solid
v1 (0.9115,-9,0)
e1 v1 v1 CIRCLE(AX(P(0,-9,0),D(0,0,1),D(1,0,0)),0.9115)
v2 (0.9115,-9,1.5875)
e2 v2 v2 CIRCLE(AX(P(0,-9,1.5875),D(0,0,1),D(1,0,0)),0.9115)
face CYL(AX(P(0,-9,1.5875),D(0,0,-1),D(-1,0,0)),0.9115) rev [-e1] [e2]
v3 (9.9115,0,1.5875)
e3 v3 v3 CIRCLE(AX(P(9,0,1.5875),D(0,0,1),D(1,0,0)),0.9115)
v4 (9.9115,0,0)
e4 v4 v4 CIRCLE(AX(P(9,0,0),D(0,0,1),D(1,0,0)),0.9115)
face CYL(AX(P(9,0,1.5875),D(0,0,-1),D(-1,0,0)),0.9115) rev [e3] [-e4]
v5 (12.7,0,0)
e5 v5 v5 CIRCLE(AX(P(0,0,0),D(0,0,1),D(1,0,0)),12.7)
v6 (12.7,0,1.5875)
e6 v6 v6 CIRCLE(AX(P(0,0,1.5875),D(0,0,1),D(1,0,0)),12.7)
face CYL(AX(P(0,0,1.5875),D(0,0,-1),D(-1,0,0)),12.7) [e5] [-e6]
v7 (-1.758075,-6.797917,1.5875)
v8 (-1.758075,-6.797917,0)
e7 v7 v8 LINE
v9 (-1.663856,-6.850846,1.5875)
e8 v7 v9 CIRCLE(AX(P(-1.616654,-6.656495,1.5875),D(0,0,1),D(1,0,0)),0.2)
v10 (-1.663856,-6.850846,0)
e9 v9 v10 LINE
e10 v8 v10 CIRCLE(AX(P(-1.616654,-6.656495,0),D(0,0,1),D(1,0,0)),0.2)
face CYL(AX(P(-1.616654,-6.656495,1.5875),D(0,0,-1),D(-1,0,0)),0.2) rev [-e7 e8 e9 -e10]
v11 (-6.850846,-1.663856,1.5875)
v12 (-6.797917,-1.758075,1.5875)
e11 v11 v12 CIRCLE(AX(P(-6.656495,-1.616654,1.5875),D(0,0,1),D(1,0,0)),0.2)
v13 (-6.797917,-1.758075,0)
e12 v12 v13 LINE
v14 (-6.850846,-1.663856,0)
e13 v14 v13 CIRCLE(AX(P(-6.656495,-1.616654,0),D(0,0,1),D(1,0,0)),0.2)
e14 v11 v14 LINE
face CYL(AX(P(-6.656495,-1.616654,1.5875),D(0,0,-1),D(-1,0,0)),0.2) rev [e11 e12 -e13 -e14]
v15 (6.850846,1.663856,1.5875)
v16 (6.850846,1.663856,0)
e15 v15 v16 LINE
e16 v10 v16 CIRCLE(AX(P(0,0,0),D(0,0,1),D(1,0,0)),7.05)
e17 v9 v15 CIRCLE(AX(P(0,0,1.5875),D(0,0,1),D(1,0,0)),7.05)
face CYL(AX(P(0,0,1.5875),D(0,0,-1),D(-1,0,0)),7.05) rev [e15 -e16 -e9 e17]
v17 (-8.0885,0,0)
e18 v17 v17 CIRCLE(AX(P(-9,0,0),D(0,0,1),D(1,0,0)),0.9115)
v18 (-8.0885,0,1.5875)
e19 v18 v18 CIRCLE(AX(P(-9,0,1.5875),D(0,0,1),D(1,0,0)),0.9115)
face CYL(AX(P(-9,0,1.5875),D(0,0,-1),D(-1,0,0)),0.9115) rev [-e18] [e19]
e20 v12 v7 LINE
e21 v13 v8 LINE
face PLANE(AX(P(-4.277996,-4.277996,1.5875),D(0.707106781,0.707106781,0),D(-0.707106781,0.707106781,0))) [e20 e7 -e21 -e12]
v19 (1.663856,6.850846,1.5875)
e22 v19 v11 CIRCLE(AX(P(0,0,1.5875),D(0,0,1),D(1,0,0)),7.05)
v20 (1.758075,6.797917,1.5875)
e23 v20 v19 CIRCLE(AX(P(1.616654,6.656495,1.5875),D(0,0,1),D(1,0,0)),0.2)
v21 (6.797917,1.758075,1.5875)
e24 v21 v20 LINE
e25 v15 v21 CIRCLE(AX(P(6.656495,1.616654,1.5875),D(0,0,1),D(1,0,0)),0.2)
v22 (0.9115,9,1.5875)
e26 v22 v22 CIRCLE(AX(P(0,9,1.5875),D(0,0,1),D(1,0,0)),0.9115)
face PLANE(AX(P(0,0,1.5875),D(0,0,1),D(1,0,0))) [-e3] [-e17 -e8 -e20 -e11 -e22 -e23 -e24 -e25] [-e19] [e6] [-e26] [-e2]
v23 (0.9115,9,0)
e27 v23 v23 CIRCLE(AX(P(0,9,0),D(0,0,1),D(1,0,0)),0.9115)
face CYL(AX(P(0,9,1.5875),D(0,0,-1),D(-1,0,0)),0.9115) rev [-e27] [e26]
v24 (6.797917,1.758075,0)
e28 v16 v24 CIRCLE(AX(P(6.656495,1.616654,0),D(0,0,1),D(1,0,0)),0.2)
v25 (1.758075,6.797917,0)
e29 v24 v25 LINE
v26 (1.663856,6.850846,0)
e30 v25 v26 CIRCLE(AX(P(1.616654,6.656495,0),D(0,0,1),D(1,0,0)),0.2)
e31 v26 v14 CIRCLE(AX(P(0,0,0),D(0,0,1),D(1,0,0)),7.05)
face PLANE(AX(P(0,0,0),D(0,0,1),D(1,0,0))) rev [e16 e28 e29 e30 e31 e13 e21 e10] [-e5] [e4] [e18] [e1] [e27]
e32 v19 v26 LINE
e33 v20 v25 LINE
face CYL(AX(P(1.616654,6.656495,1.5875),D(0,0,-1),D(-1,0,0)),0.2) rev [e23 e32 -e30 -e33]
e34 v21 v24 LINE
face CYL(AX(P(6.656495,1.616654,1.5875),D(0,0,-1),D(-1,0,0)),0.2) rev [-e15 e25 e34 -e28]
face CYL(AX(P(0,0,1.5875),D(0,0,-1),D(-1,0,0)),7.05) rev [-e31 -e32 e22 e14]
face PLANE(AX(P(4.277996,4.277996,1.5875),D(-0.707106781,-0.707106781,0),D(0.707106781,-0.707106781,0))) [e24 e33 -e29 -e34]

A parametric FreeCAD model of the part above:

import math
import FreeCAD as App
import Part
import Sketcher

V = App.Vector
Q = App.Units.Quantity

doc = App.newDocument("Part")
params = doc.addObject("Spreadsheet::Sheet", "Params")
for row, (alias, value) in enumerate([
    ("sketch1_diameter", "25.4 mm"),
    ("sketch1_radius", "0.2 mm"),
    ("sketch1_radius2", "7.05 mm"),
    ("pad1_length", "1.5875 mm"),
], start=1):
    params.set(f"A{row}", alias)
    params.set(f"B{row}", "=" + value)
    params.setAlias(f"B{row}", alias)

body = doc.addObject("PartDesign::Body", "Body")

# Sketch on XY plane
sketch1 = doc.addObject("Sketcher::SketchObject", "Sketch")
body.addObject(sketch1)
sketch1.AttachmentSupport = (doc.XY_Plane, [""])
sketch1.MapMode = "FlatFace"
sketch1.addGeometry(Part.Circle(V(0, 0, 0), V(0, 0, 1), 12.7), False)
sketch1.addGeometry(Part.ArcOfCircle(Part.Circle(V(0, 0, 0), V(0, 0, 1), 7.05), math.radians(76.348958), math.radians(193.651042)), False)
sketch1.addGeometry(Part.ArcOfCircle(Part.Circle(V(1.616654, 6.656495, 0), V(0, 0, 1), 0.2), math.radians(45.000001), math.radians(76.348958)), False)
sketch1.addGeometry(Part.LineSegment(V(1.758075, 6.797917, 0), V(6.797917, 1.758075, 0)), False)
sketch1.addGeometry(Part.ArcOfCircle(Part.Circle(V(6.656495, 1.616654, 0), V(0, 0, 1), 0.2), math.radians(13.651042), math.radians(44.999999)), False)
sketch1.addGeometry(Part.ArcOfCircle(Part.Circle(V(0, 0, 0), V(0, 0, 1), 7.05), math.radians(-103.651042), math.radians(13.651042)), False)
sketch1.addGeometry(Part.ArcOfCircle(Part.Circle(V(-1.616654, -6.656495, 0), V(0, 0, 1), 0.2), math.radians(-134.999999), math.radians(-103.651042)), False)
sketch1.addGeometry(Part.LineSegment(V(-1.758075, -6.797917, 0), V(-6.797917, -1.758075, 0)), False)
sketch1.addGeometry(Part.ArcOfCircle(Part.Circle(V(-6.656495, -1.616654, 0), V(0, 0, 1), 0.2), math.radians(-166.348958), math.radians(-135.000001)), False)
sketch1.addGeometry(Part.Circle(V(0, 9, 0), V(0, 0, 1), 0.9115), False)
sketch1.addGeometry(Part.Circle(V(9, 0, 0), V(0, 0, 1), 0.9115), False)
sketch1.addGeometry(Part.Circle(V(0, -9, 0), V(0, 0, 1), 0.9115), False)
sketch1.addGeometry(Part.Circle(V(-9, 0, 0), V(0, 0, 1), 0.9115), False)
sketch1.addConstraint(Sketcher.Constraint("Tangent", 1, 1, 2, 2))
sketch1.addConstraint(Sketcher.Constraint("Tangent", 2, 1, 3, 1))
sketch1.addConstraint(Sketcher.Constraint("Tangent", 3, 2, 4, 2))
sketch1.addConstraint(Sketcher.Constraint("Tangent", 4, 1, 5, 2))
sketch1.addConstraint(Sketcher.Constraint("Tangent", 5, 1, 6, 2))
sketch1.addConstraint(Sketcher.Constraint("Tangent", 6, 1, 7, 1))
sketch1.addConstraint(Sketcher.Constraint("Tangent", 7, 2, 8, 2))
sketch1.addConstraint(Sketcher.Constraint("Tangent", 8, 1, 1, 2))
sketch1.addConstraint(Sketcher.Constraint("Coincident", 0, 3, -1, 1))
sketch1.addConstraint(Sketcher.Constraint("Coincident", 1, 3, -1, 1))
sketch1.addConstraint(Sketcher.Constraint("Coincident", 5, 3, -1, 1))
sketch1.addConstraint(Sketcher.Constraint("Equal", 2, 4))
sketch1.addConstraint(Sketcher.Constraint("Equal", 1, 5))
sketch1.addConstraint(Sketcher.Constraint("Equal", 4, 6))
sketch1.addConstraint(Sketcher.Constraint("Equal", 6, 8))
sketch1.addConstraint(Sketcher.Constraint("Equal", 9, 10))
sketch1.addConstraint(Sketcher.Constraint("Equal", 10, 11))
sketch1.addConstraint(Sketcher.Constraint("Equal", 11, 12))
sketch1.addConstraint(Sketcher.Constraint("Symmetric", 9, 3, 11, 3, -1, 1))
sketch1.addConstraint(Sketcher.Constraint("Symmetric", 10, 3, 12, 3, -1, 1))
sketch1.addConstraint(Sketcher.Constraint("Symmetric", 2, 1, 6, 1, -1, 1))
sketch1.addConstraint(Sketcher.Constraint("PointOnObject", 9, 3, -2))
sketch1.addConstraint(Sketcher.Constraint("PointOnObject", 10, 3, -1))
sketch1.addConstraint(Sketcher.Constraint("Diameter", 0, 25.4))
sketch1.addConstraint(Sketcher.Constraint("Radius", 2, 0.2))
sketch1.addConstraint(Sketcher.Constraint("Angle", 3, Q("-45 deg")))
sketch1.addConstraint(Sketcher.Constraint("Radius", 1, 7.05))
sketch1.addConstraint(Sketcher.Constraint("Diameter", 9, 1.823))
sketch1.addConstraint(Sketcher.Constraint("DistanceY", -1, 1, 9, 3, 9.0))
sketch1.addConstraint(Sketcher.Constraint("DistanceX", -1, 1, 10, 3, 9.0))
sketch1.addConstraint(Sketcher.Constraint("DistanceY", 4, 3, 4, 1, 0.047202))
sketch1.setExpression("Constraints[23]", "Params.sketch1_diameter")
sketch1.setExpression("Constraints[24]", "Params.sketch1_radius")
sketch1.setExpression("Constraints[26]", "Params.sketch1_radius2")
pad1 = doc.addObject("PartDesign::Pad", "Pad")
body.addObject(pad1)
pad1.Profile = sketch1
pad1.setExpression("Length", "Params.pad1_length")

doc.recompute()
